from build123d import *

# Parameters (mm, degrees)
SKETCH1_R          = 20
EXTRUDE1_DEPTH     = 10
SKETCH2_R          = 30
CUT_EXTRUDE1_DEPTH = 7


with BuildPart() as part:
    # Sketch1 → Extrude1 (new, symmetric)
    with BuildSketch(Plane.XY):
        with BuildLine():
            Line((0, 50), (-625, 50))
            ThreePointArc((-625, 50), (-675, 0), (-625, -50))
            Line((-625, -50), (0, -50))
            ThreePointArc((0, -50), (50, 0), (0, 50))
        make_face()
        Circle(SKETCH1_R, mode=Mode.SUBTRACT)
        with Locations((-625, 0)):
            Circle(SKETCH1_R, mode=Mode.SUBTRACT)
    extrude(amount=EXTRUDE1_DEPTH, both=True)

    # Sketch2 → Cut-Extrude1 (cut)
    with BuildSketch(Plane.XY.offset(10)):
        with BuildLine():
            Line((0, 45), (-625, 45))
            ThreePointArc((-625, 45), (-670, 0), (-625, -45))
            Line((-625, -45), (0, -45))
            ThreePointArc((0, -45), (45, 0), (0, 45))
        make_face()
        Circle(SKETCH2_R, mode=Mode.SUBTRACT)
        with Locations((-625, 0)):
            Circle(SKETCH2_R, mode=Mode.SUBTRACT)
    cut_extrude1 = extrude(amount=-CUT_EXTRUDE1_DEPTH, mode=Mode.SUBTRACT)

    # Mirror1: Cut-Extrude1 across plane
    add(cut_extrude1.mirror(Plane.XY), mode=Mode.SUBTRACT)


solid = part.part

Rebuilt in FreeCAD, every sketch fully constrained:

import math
import FreeCAD as App
import Part
import Sketcher

V = App.Vector

doc = App.newDocument("Part")
params = doc.addObject("Spreadsheet::Sheet", "Params")
for row, (alias, value) in enumerate([
    ("sketch1_diameter", "40 mm"),
    ("sketch1_radius", "50 mm"),
    ("sketch1_width", "625 mm"),
    ("pad1_length", "20 mm"),
    ("sketch2_diameter", "60 mm"),
    ("sketch2_radius", "45 mm"),
    ("sketch2_width", "625 mm"),
    ("pocket1_length", "7 mm"),
], start=1):
    params.set(f"A{row}", alias)
    params.set(f"B{row}", "=" + value)
    params.setAlias(f"B{row}", alias)

body = doc.addObject("PartDesign::Body", "Body")

# Sketch on XY plane
sketch1 = body.newObject("Sketcher::SketchObject", "Sketch")
sketch1.AttachmentSupport = (doc.getObject("XY_Plane"), [""])
sketch1.MapMode = "FlatFace"
sketch1.addGeometry(Part.LineSegment(V(0, 50, 0), V(-625, 50, 0)), False)
sketch1.addGeometry(Part.ArcOfCircle(Part.Circle(V(-625, 0, 0), V(0, 0, 1), 50), math.radians(90), math.radians(270)), False)
sketch1.addGeometry(Part.LineSegment(V(-625, -50, 0), V(0, -50, 0)), False)
sketch1.addGeometry(Part.ArcOfCircle(Part.Circle(V(0, 0, 0), V(0, 0, 1), 50), math.radians(-90), math.radians(90)), False)
sketch1.addGeometry(Part.Circle(V(-625, 0, 0), V(0, 0, 1), 20), False)
sketch1.addGeometry(Part.Circle(V(0, 0, 0), V(0, 0, 1), 20), False)
sketch1.addConstraint(Sketcher.Constraint("Tangent", 0, 2, 1, 1))
sketch1.addConstraint(Sketcher.Constraint("Tangent", 1, 2, 2, 1))
sketch1.addConstraint(Sketcher.Constraint("Tangent", 2, 2, 3, 1))
sketch1.addConstraint(Sketcher.Constraint("Tangent", 3, 2, 0, 1))
sketch1.addConstraint(Sketcher.Constraint("Horizontal", 0))
sketch1.addConstraint(Sketcher.Constraint("Horizontal", 2))
sketch1.addConstraint(Sketcher.Constraint("Coincident", 3, 3, -1, 1))
sketch1.addConstraint(Sketcher.Constraint("Coincident", 5, 3, -1, 1))
sketch1.addConstraint(Sketcher.Constraint("Coincident", 4, 3, 1, 3))
sketch1.addConstraint(Sketcher.Constraint("Equal", 4, 5))
sketch1.addConstraint(Sketcher.Constraint("Diameter", 4, 40.0))
sketch1.addConstraint(Sketcher.Constraint("Radius", 1, 50.0))
sketch1.addConstraint(Sketcher.Constraint("DistanceX", 0, 2, 0, 1, 625.0))
sketch1.setExpression("Constraints[10]", "Params.sketch1_diameter")
sketch1.setExpression("Constraints[11]", "Params.sketch1_radius")
sketch1.setExpression("Constraints[12]", "Params.sketch1_width")
pad1 = body.newObject("PartDesign::Pad", "Pad")
pad1.Profile = sketch1
pad1.setExpression("Length", "Params.pad1_length")
pad1.Midplane = True

# Sketch on XY plane
sketch2 = body.newObject("Sketcher::SketchObject", "Sketch001")
sketch2.AttachmentSupport = (doc.getObject("XY_Plane"), [""])
sketch2.MapMode = "FlatFace"
sketch2.AttachmentOffset = App.Placement(V(0, 0, 10), App.Rotation())
sketch2.addGeometry(Part.LineSegment(V(0, 45, 0), V(-625, 45, 0)), False)
sketch2.addGeometry(Part.ArcOfCircle(Part.Circle(V(-625, 0, 0), V(0, 0, 1), 45), math.radians(90), math.radians(270)), False)
sketch2.addGeometry(Part.LineSegment(V(-625, -45, 0), V(0, -45, 0)), False)
sketch2.addGeometry(Part.ArcOfCircle(Part.Circle(V(0, 0, 0), V(0, 0, 1), 45), math.radians(-90), math.radians(90)), False)
sketch2.addGeometry(Part.Circle(V(-625, 0, 0), V(0, 0, 1), 30), False)
sketch2.addGeometry(Part.Circle(V(0, 0, 0), V(0, 0, 1), 30), False)
sketch2.addConstraint(Sketcher.Constraint("Tangent", 0, 2, 1, 1))
sketch2.addConstraint(Sketcher.Constraint("Tangent", 1, 2, 2, 1))
sketch2.addConstraint(Sketcher.Constraint("Tangent", 2, 2, 3, 1))
sketch2.addConstraint(Sketcher.Constraint("Tangent", 3, 2, 0, 1))
sketch2.addConstraint(Sketcher.Constraint("Horizontal", 0))
sketch2.addConstraint(Sketcher.Constraint("Horizontal", 2))
sketch2.addConstraint(Sketcher.Constraint("Coincident", 3, 3, -1, 1))
sketch2.addConstraint(Sketcher.Constraint("Coincident", 5, 3, -1, 1))
sketch2.addConstraint(Sketcher.Constraint("Coincident", 4, 3, 1, 3))
sketch2.addConstraint(Sketcher.Constraint("Equal", 4, 5))
sketch2.addConstraint(Sketcher.Constraint("Diameter", 4, 60.0))
sketch2.addConstraint(Sketcher.Constraint("Radius", 1, 45.0))
sketch2.addConstraint(Sketcher.Constraint("DistanceX", 0, 2, 0, 1, 625.0))
sketch2.setExpression("Constraints[10]", "Params.sketch2_diameter")
sketch2.setExpression("Constraints[11]", "Params.sketch2_radius")
sketch2.setExpression("Constraints[12]", "Params.sketch2_width")
pocket1 = body.newObject("PartDesign::Pocket", "Pocket")
pocket1.Profile = sketch2
pocket1.setExpression("Length", "Params.pocket1_length")
doc.recompute()

mirrored = body.newObject("PartDesign::Mirrored", "Mirrored")
mirrored.Originals = [pocket1]
mirrored.MirrorPlane = (doc.getObject("XY_Plane"), [""])
body.Tip = mirrored

doc.recompute()
